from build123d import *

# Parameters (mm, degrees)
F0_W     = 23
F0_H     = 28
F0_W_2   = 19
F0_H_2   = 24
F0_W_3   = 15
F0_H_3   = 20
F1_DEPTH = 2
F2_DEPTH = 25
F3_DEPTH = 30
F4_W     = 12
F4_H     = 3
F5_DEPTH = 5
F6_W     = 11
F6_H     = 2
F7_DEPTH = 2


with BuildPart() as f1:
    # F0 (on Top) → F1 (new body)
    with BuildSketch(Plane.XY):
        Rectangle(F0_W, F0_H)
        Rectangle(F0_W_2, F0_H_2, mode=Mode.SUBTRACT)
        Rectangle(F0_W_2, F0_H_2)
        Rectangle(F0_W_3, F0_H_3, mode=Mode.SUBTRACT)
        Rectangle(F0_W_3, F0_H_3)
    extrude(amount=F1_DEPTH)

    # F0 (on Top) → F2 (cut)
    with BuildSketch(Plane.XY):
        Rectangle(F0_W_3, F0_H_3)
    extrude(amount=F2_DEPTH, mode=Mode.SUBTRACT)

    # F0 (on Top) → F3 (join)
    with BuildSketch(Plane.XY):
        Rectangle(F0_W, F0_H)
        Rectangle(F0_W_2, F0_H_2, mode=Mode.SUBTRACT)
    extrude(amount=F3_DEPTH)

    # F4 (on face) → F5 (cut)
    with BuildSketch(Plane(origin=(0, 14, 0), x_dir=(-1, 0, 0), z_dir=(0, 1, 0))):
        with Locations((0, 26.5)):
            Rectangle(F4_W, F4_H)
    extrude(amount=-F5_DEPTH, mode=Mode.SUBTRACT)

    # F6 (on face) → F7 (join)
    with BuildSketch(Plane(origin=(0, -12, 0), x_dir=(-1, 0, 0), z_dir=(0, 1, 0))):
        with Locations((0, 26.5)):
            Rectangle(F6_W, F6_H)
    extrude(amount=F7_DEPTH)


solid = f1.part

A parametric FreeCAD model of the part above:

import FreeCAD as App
import Part
import Sketcher


def add_polygon(sketch, points):
    """Adds a closed chain of lines whose ends are joined by coincident constraints."""
    first, n = sketch.GeometryCount, len(points)
    for a, b in zip(points, points[1:] + points[:1]):
        sketch.addGeometry(Part.LineSegment(App.Vector(*a, 0), App.Vector(*b, 0)), False)
    for i in range(n):
        sketch.addConstraint(Sketcher.Constraint("Coincident", first + i, 2, first + (i + 1) % n, 1))

doc = App.newDocument("Part")
body = doc.addObject("PartDesign::Body", "Body")

# Sketch on XY plane
sketch1 = body.newObject("Sketcher::SketchObject", "Sketch")
sketch1.AttachmentSupport = (doc.getObject("XY_Plane"), [""])
sketch1.MapMode = "FlatFace"
add_polygon(sketch1, [(-11.5, 14), (-11.5, -14), (11.5, -14), (11.5, 14)])  # lines 0-3
sketch1.addConstraint(Sketcher.Constraint("Vertical", 0))
sketch1.addConstraint(Sketcher.Constraint("Horizontal", 1))
sketch1.addConstraint(Sketcher.Constraint("Vertical", 2))
sketch1.addConstraint(Sketcher.Constraint("Horizontal", 3))
sketch1.addConstraint(Sketcher.Constraint("Symmetric", 0, 2, 2, 2, -1, 1))
sketch1.addConstraint(Sketcher.Constraint("DistanceX", 1, 1, 1, 2, 23.0))
sketch1.addConstraint(Sketcher.Constraint("DistanceY", 0, 2, 0, 1, 28.0))
pad1 = body.newObject("PartDesign::Pad", "Pad")
pad1.Profile = sketch1
pad1.Length = 2

# Sketch on XY plane
sketch2 = body.newObject("Sketcher::SketchObject", "Sketch001")
sketch2.AttachmentSupport = (doc.getObject("XY_Plane"), [""])
sketch2.MapMode = "FlatFace"
add_polygon(sketch2, [(-7.5, 10), (-7.5, -10), (7.5, -10), (7.5, 10)])  # lines 0-3
sketch2.addConstraint(Sketcher.Constraint("Vertical", 0))
sketch2.addConstraint(Sketcher.Constraint("Horizontal", 1))
sketch2.addConstraint(Sketcher.Constraint("Vertical", 2))
sketch2.addConstraint(Sketcher.Constraint("Horizontal", 3))
sketch2.addConstraint(Sketcher.Constraint("Symmetric", 0, 2, 2, 2, -1, 1))
sketch2.addConstraint(Sketcher.Constraint("DistanceX", 1, 1, 1, 2, 15.0))
sketch2.addConstraint(Sketcher.Constraint("DistanceY", 0, 2, 0, 1, 20.0))
pocket1 = body.newObject("PartDesign::Pocket", "Pocket")
pocket1.Profile = sketch2
pocket1.Length = 25
pocket1.Reversed = True

# Sketch on XY plane
sketch3 = body.newObject("Sketcher::SketchObject", "Sketch002")
sketch3.AttachmentSupport = (doc.getObject("XY_Plane"), [""])
sketch3.MapMode = "FlatFace"
add_polygon(sketch3, [(-11.5, 14), (-11.5, -14), (11.5, -14), (11.5, 14)])  # lines 0-3
add_polygon(sketch3, [(9.5, -12), (-9.5, -12), (-9.5, 12), (9.5, 12)])  # lines 4-7
sketch3.addConstraint(Sketcher.Constraint("Vertical", 0))
sketch3.addConstraint(Sketcher.Constraint("Horizontal", 1))
sketch3.addConstraint(Sketcher.Constraint("Vertical", 2))
sketch3.addConstraint(Sketcher.Constraint("Horizontal", 3))
sketch3.addConstraint(Sketcher.Constraint("Horizontal", 4))
sketch3.addConstraint(Sketcher.Constraint("Vertical", 5))
sketch3.addConstraint(Sketcher.Constraint("Horizontal", 6))
sketch3.addConstraint(Sketcher.Constraint("Vertical", 7))
sketch3.addConstraint(Sketcher.Constraint("Symmetric", 0, 2, 2, 2, -1, 1))
sketch3.addConstraint(Sketcher.Constraint("Symmetric", 4, 2, 6, 2, -1, 1))
sketch3.addConstraint(Sketcher.Constraint("DistanceX", 1, 1, 1, 2, 23.0))
sketch3.addConstraint(Sketcher.Constraint("DistanceX", 4, 2, 4, 1, 19.0))
sketch3.addConstraint(Sketcher.Constraint("DistanceY", 0, 2, 0, 1, 28.0))
sketch3.addConstraint(Sketcher.Constraint("DistanceY", 5, 1, 5, 2, 24.0))
pad2 = body.newObject("PartDesign::Pad", "Pad001")
pad2.Profile = sketch3
pad2.Length = 30

# Sketch on XZ plane
sketch4 = body.newObject("Sketcher::SketchObject", "Sketch003")
sketch4.AttachmentSupport = (doc.getObject("XZ_Plane"), [""])
sketch4.MapMode = "FlatFace"
sketch4.AttachmentOffset = App.Placement(App.Vector(0, 0, -14), App.Rotation())
add_polygon(sketch4, [(6, 28), (6, 25), (-6, 25), (-6, 28)])  # lines 0-3
sketch4.addConstraint(Sketcher.Constraint("Vertical", 0))
sketch4.addConstraint(Sketcher.Constraint("Horizontal", 1))
sketch4.addConstraint(Sketcher.Constraint("Vertical", 2))
sketch4.addConstraint(Sketcher.Constraint("Horizontal", 3))
sketch4.addConstraint(Sketcher.Constraint("DistanceX", 1, 2, 1, 1, 12.0))
sketch4.addConstraint(Sketcher.Constraint("DistanceY", 0, 2, 0, 1, 3.0))
sketch4.addConstraint(Sketcher.Constraint("DistanceX", -1, 1, 0, 2, 6.0))
sketch4.addConstraint(Sketcher.Constraint("DistanceY", -1, 1, 0, 2, 25.0))
pocket2 = body.newObject("PartDesign::Pocket", "Pocket001")
pocket2.Profile = sketch4
pocket2.Length = 5
pocket2.Reversed = True

# Sketch on XZ plane
sketch5 = body.newObject("Sketcher::SketchObject", "Sketch004")
sketch5.AttachmentSupport = (doc.getObject("XZ_Plane"), [""])
sketch5.MapMode = "FlatFace"
sketch5.AttachmentOffset = App.Placement(App.Vector(0, 0, 12), App.Rotation())
add_polygon(sketch5, [(5.5, 27.5), (5.5, 25.5), (-5.5, 25.5), (-5.5, 27.5)])  # lines 0-3
sketch5.addConstraint(Sketcher.Constraint("Vertical", 0))
sketch5.addConstraint(Sketcher.Constraint("Horizontal", 1))
sketch5.addConstraint(Sketcher.Constraint("Vertical", 2))
sketch5.addConstraint(Sketcher.Constraint("Horizontal", 3))
sketch5.addConstraint(Sketcher.Constraint("DistanceX", 1, 2, 1, 1, 11.0))
sketch5.addConstraint(Sketcher.Constraint("DistanceY", 0, 2, 0, 1, 2.0))
sketch5.addConstraint(Sketcher.Constraint("DistanceX", -1, 1, 0, 2, 5.5))
sketch5.addConstraint(Sketcher.Constraint("DistanceY", -1, 1, 0, 2, 25.5))
pad3 = body.newObject("PartDesign::Pad", "Pad002")
pad3.Profile = sketch5
pad3.Length = 2
pad3.Reversed = True

doc.recompute()
